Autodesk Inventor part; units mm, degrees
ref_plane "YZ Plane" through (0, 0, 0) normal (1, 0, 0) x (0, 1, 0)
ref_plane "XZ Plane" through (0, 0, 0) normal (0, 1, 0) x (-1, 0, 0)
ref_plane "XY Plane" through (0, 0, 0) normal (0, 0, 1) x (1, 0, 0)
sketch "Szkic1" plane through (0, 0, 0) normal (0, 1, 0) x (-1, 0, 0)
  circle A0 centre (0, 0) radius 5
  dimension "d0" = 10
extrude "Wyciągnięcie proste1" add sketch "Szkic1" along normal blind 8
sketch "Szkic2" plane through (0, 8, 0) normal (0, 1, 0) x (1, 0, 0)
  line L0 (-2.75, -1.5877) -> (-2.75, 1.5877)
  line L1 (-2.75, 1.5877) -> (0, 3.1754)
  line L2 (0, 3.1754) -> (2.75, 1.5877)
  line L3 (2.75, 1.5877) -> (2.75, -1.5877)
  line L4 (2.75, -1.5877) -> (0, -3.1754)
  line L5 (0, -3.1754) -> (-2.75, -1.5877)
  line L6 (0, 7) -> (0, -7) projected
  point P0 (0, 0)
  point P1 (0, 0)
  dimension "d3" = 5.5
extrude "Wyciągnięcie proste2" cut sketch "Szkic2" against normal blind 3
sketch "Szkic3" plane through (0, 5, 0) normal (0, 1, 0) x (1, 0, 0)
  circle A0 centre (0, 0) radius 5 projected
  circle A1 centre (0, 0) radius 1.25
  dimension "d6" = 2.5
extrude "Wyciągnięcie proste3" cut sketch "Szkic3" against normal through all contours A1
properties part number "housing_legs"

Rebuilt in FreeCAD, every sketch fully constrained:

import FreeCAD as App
import Part
import Sketcher
Q = App.Units.Quantity

doc = App.newDocument("Part")
params = doc.addObject("Spreadsheet::Sheet", "Params")
for row, (alias, value) in enumerate([
    ("sketch1_diameter", "10 mm"),
    ("pad1_length", "8 mm"),
    ("pocket1_length", "3 mm"),
    ("sketch3_diameter", "2.5 mm"),
], start=1):
    params.set(f"A{row}", alias)
    params.set(f"B{row}", "=" + value)
    params.setAlias(f"B{row}", alias)

body = doc.addObject("PartDesign::Body", "Body")

# Sketch on XZ plane
sketch1 = body.newObject("Sketcher::SketchObject", "Sketch")
sketch1.AttachmentSupport = (doc.getObject("XZ_Plane"), [""])
sketch1.MapMode = "FlatFace"
sketch1.addGeometry(Part.Circle(App.Vector(0, 0, 0), App.Vector(0, 0, 1), 5), False)
sketch1.addConstraint([
    Sketcher.Constraint("Coincident", 0, 3, -1, 1),
    Sketcher.Constraint("Diameter", 0, Q("10 mm")),
])
sketch1.setExpression("Constraints[1]", "Params.sketch1_diameter")
pad1 = body.newObject("PartDesign::Pad", "Pad")
pad1.Profile = sketch1
pad1.setExpression("Length", "Params.pad1_length")
pad1.Reversed = True

# Sketch on XZ plane
sketch2 = body.newObject("Sketcher::SketchObject", "Sketch001")
sketch2.AttachmentSupport = (doc.getObject("XZ_Plane"), [""])
sketch2.MapMode = "FlatFace"
sketch2.AttachmentOffset = App.Placement(App.Vector(0, 0, -8), App.Rotation())
sketch2.addGeometry([
    Part.LineSegment(App.Vector(-2.75, -1.5877, 0), App.Vector(-2.75, 1.5877, 0)),  # 0
    Part.LineSegment(App.Vector(-2.75, 1.5877, 0), App.Vector(0, 3.1754, 0)),  # 1
    Part.LineSegment(App.Vector(0, 3.1754, 0), App.Vector(2.75, 1.5877, 0)),  # 2
    Part.LineSegment(App.Vector(2.75, 1.5877, 0), App.Vector(2.75, -1.5877, 0)),  # 3
    Part.LineSegment(App.Vector(2.75, -1.5877, 0), App.Vector(0, -3.1754, 0)),  # 4
    Part.LineSegment(App.Vector(0, -3.1754, 0), App.Vector(-2.75, -1.5877, 0)),  # 5
], False)
sketch2.addConstraint([
    Sketcher.Constraint("Coincident", 0, 2, 1, 1),
    Sketcher.Constraint("Coincident", 1, 2, 2, 1),
    Sketcher.Constraint("Coincident", 2, 2, 3, 1),
    Sketcher.Constraint("Coincident", 3, 2, 4, 1),
    Sketcher.Constraint("Coincident", 4, 2, 5, 1),
    Sketcher.Constraint("Coincident", 5, 2, 0, 1),
    Sketcher.Constraint("Vertical", 0),
    Sketcher.Constraint("Vertical", 3),
    Sketcher.Constraint("Symmetric", 0, 2, 3, 2, -1, 1),
    Sketcher.Constraint("Symmetric", 1, 2, 4, 2, -1, 1),
    Sketcher.Constraint("PointOnObject", 1, 2, -2),
    Sketcher.Constraint("Parallel", 2, 5),
    Sketcher.Constraint("Horizontal", 0, 2, 2, 2),
    Sketcher.Constraint("DistanceX", 0, 2, 2, 2, Q("5.5 mm")),
    Sketcher.Constraint("Angle", 1, Q("29.9998 deg")),
    Sketcher.Constraint("DistanceY", 0, 1, 0, 2, Q("3.1754 mm")),
])
pocket1 = body.newObject("PartDesign::Pocket", "Pocket")
pocket1.Profile = sketch2
pocket1.setExpression("Length", "Params.pocket1_length")
pocket1.Reversed = True

# Sketch on XZ plane
sketch3 = body.newObject("Sketcher::SketchObject", "Sketch002")
sketch3.AttachmentSupport = (doc.getObject("XZ_Plane"), [""])
sketch3.MapMode = "FlatFace"
sketch3.AttachmentOffset = App.Placement(App.Vector(0, 0, -5), App.Rotation())
sketch3.addGeometry(Part.Circle(App.Vector(0, 0, 0), App.Vector(0, 0, 1), 1.25), False)
sketch3.addConstraint([
    Sketcher.Constraint("Coincident", 0, 3, -1, 1),
    Sketcher.Constraint("Diameter", 0, Q("2.5 mm")),
])
sketch3.setExpression("Constraints[1]", "Params.sketch3_diameter")
pocket2 = body.newObject("PartDesign::Pocket", "Pocket001")
pocket2.Profile = sketch3
pocket2.Type = "ThroughAll"
pocket2.Reversed = True

doc.recompute()
